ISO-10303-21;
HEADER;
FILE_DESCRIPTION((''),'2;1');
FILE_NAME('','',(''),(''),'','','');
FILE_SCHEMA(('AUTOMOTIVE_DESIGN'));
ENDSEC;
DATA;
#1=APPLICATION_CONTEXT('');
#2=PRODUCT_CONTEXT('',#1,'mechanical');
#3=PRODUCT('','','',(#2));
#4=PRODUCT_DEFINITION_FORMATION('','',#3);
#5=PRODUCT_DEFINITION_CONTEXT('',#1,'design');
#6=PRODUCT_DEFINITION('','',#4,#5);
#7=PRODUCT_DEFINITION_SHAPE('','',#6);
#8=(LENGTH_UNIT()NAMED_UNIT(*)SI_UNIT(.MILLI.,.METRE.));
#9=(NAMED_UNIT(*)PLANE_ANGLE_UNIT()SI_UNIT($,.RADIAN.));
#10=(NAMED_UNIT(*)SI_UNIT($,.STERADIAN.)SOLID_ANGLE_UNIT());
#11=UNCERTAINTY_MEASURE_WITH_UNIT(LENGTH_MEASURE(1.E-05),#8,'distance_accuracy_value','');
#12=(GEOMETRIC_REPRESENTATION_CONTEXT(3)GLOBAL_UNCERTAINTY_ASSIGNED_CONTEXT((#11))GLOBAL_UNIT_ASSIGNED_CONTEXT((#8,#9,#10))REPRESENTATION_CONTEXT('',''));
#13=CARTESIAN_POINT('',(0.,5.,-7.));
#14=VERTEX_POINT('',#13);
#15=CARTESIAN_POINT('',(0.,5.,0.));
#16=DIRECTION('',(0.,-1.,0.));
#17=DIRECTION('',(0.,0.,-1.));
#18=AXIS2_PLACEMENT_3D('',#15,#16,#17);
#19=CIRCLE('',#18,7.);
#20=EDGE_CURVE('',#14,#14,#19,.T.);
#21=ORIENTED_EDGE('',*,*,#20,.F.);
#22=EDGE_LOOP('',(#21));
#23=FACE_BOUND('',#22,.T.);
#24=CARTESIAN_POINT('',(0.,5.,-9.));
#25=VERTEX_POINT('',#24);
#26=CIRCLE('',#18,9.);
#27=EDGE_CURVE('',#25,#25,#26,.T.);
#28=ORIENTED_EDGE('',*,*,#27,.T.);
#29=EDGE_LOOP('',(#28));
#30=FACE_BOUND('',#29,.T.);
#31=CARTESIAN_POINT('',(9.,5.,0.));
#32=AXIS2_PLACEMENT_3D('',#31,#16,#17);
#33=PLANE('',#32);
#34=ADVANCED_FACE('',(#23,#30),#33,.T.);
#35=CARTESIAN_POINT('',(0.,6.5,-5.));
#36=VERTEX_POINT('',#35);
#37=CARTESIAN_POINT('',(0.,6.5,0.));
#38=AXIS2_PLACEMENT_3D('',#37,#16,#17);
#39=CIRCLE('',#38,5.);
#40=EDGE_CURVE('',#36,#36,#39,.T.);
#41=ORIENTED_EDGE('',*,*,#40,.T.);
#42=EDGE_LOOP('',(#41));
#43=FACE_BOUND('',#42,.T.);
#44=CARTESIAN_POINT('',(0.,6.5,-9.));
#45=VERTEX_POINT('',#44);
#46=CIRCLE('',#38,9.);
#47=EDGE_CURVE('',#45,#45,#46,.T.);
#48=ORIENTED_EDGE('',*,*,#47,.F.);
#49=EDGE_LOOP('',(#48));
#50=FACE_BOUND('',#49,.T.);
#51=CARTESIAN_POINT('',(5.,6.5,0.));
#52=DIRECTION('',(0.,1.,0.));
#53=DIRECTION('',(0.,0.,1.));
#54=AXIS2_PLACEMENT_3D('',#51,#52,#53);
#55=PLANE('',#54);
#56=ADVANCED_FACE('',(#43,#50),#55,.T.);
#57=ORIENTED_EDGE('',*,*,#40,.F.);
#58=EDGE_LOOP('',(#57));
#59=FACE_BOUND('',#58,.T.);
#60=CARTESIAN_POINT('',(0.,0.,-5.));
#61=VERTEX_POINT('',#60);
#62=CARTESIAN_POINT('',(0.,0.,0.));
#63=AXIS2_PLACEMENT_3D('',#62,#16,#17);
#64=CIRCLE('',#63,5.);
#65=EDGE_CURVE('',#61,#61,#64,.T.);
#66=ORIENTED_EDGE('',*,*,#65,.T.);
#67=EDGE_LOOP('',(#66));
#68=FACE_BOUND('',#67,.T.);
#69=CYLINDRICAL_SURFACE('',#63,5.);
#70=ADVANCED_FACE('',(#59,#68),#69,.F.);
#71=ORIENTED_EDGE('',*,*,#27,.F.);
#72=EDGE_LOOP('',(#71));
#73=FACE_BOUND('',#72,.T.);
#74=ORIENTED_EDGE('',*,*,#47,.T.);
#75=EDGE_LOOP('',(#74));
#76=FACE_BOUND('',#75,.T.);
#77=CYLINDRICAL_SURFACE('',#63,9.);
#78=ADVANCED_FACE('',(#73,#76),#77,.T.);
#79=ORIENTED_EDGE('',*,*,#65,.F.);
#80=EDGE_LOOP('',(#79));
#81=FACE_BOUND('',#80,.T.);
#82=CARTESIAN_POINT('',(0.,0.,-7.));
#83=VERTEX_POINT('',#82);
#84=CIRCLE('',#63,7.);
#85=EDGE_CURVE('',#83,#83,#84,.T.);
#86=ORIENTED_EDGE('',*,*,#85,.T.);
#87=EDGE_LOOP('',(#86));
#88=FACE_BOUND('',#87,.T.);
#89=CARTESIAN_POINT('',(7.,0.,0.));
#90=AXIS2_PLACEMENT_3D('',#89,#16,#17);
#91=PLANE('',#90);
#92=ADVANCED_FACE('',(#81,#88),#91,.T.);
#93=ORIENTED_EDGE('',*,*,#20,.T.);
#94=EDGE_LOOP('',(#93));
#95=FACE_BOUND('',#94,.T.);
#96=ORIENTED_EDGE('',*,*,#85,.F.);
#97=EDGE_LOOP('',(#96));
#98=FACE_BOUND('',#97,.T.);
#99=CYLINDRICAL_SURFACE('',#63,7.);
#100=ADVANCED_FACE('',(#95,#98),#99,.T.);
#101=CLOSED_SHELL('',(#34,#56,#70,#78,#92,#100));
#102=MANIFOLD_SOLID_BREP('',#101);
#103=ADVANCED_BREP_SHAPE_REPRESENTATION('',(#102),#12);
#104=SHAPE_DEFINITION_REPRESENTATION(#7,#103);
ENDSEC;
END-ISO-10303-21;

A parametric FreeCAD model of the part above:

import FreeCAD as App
import Part
import Sketcher

doc = App.newDocument("Part")
params = doc.addObject("Spreadsheet::Sheet", "Params")
for row, (alias, value) in enumerate([
    ("sketch1_width", "2 mm"),
    ("sketch1_height", "5 mm"),
    ("sketch1_height2", "6.5 mm"),
    ("revolution_angle", "360 deg"),
], start=1):
    params.set(f"A{row}", alias)
    params.set(f"B{row}", "=" + value)
    params.setAlias(f"B{row}", alias)

body = doc.addObject("PartDesign::Body", "Body")

# Sketch on XY plane
sketch1 = doc.addObject("Sketcher::SketchObject", "Sketch")
body.addObject(sketch1)
sketch1.AttachmentSupport = (doc.XY_Plane, [""])
sketch1.MapMode = "FlatFace"
sketch1.addGeometry(Part.LineSegment(App.Vector(5, 6.5, 0), App.Vector(5, 0, 0)), False)
sketch1.addGeometry(Part.LineSegment(App.Vector(5, 0, 0), App.Vector(7, 0, 0)), False)
sketch1.addGeometry(Part.LineSegment(App.Vector(7, 0, 0), App.Vector(7, 5, 0)), False)
sketch1.addGeometry(Part.LineSegment(App.Vector(7, 5, 0), App.Vector(9, 5, 0)), False)
sketch1.addGeometry(Part.LineSegment(App.Vector(9, 5, 0), App.Vector(9, 6.5, 0)), False)
sketch1.addGeometry(Part.LineSegment(App.Vector(9, 6.5, 0), App.Vector(5, 6.5, 0)), False)
sketch1.addConstraint(Sketcher.Constraint("Coincident", 0, 2, 1, 1))
sketch1.addConstraint(Sketcher.Constraint("Coincident", 1, 2, 2, 1))
sketch1.addConstraint(Sketcher.Constraint("Coincident", 2, 2, 3, 1))
sketch1.addConstraint(Sketcher.Constraint("Coincident", 3, 2, 4, 1))
sketch1.addConstraint(Sketcher.Constraint("Coincident", 4, 2, 5, 1))
sketch1.addConstraint(Sketcher.Constraint("Coincident", 5, 2, 0, 1))
sketch1.addConstraint(Sketcher.Constraint("Vertical", 0))
sketch1.addConstraint(Sketcher.Constraint("Horizontal", 1))
sketch1.addConstraint(Sketcher.Constraint("Vertical", 2))
sketch1.addConstraint(Sketcher.Constraint("Horizontal", 3))
sketch1.addConstraint(Sketcher.Constraint("Vertical", 4))
sketch1.addConstraint(Sketcher.Constraint("Horizontal", 5))
sketch1.addConstraint(Sketcher.Constraint("PointOnObject", 0, 2, -1))
sketch1.addConstraint(Sketcher.Constraint("Equal", 1, 3))
sketch1.addConstraint(Sketcher.Constraint("DistanceX", 1, 1, 1, 2, 2.0))
sketch1.addConstraint(Sketcher.Constraint("DistanceY", 2, 1, 2, 2, 5.0))
sketch1.addConstraint(Sketcher.Constraint("DistanceY", 0, 2, 0, 1, 6.5))
sketch1.addConstraint(Sketcher.Constraint("DistanceX", -1, 1, 0, 2, 5.0))
sketch1.setExpression("Constraints[14]", "Params.sketch1_width")
sketch1.setExpression("Constraints[15]", "Params.sketch1_height")
sketch1.setExpression("Constraints[16]", "Params.sketch1_height2")
revolution = doc.addObject("PartDesign::Revolution", "Revolution")
body.addObject(revolution)
revolution.Profile = sketch1
revolution.ReferenceAxis = (sketch1, ["V_Axis"])
revolution.setExpression("Angle", "Params.revolution_angle")

doc.recompute()
